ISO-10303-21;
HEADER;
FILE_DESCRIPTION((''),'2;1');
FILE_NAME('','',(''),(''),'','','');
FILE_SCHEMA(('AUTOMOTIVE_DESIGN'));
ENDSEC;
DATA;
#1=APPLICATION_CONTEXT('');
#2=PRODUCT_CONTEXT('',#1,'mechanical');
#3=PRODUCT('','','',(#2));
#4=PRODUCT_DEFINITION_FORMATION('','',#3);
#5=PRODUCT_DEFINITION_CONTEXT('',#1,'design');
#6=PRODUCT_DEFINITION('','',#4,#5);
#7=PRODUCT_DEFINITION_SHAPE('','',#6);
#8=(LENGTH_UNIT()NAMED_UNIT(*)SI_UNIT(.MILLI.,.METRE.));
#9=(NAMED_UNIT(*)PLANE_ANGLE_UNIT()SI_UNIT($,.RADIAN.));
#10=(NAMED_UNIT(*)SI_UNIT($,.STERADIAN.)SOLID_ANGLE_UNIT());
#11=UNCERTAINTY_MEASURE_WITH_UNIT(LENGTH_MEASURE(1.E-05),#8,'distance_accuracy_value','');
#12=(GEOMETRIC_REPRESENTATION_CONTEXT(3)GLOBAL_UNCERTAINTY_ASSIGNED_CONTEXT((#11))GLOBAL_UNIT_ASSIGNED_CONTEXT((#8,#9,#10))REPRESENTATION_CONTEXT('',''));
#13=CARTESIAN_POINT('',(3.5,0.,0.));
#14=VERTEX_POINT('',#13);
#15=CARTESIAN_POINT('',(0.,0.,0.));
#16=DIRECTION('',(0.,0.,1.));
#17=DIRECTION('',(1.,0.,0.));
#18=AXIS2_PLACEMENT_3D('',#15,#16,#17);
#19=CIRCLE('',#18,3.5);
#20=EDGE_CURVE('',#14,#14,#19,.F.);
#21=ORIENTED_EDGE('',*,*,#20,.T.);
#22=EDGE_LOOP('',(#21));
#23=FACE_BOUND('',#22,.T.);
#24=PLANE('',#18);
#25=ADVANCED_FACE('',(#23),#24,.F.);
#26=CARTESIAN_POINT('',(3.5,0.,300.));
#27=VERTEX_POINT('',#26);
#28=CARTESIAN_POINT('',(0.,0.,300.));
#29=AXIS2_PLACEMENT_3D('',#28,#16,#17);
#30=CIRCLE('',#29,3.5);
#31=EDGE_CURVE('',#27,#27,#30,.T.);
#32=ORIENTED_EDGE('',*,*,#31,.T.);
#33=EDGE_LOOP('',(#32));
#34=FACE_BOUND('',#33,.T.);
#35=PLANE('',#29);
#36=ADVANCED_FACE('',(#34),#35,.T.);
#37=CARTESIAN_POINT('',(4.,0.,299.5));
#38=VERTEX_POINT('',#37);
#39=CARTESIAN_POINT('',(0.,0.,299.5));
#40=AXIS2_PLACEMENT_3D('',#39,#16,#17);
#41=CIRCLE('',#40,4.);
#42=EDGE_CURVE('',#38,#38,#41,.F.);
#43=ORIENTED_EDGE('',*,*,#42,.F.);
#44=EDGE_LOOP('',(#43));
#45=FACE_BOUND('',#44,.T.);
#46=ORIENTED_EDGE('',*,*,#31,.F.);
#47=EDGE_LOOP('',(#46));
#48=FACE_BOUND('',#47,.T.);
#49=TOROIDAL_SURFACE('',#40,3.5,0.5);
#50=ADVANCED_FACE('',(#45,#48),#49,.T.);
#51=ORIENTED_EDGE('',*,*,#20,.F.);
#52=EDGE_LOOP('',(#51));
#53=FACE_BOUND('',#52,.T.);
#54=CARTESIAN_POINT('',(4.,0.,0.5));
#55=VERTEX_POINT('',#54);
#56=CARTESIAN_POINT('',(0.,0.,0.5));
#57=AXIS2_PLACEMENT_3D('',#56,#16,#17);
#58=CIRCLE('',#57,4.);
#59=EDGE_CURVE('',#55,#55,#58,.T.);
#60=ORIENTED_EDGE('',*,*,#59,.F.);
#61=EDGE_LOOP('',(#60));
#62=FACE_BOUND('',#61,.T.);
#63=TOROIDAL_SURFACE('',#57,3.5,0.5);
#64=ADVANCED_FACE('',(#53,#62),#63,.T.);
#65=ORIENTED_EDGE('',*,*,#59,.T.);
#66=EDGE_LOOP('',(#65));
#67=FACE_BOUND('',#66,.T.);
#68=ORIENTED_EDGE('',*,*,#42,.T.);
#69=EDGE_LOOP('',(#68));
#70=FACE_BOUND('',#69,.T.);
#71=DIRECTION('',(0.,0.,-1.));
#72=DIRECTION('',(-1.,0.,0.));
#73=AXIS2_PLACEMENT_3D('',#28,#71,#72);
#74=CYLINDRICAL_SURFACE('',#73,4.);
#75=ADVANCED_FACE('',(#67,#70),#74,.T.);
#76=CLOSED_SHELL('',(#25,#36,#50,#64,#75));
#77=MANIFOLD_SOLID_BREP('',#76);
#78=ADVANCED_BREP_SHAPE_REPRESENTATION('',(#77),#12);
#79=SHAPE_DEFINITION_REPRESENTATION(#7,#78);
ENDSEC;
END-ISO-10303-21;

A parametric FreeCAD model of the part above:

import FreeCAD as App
import Part
import Sketcher


def edges_at(feature, points):
    """Names of the edges that pass closest to the given points."""
    edges = feature.Shape.Edges
    near = lambda p: min(range(len(edges)), key=lambda i: edges[i].distToShape(Part.Vertex(*p))[0])
    return sorted({f"Edge{near(p) + 1}" for p in points})

doc = App.newDocument("Part")
body = doc.addObject("PartDesign::Body", "Body")

# Sketch on XY plane
sketch1 = body.newObject("Sketcher::SketchObject", "Sketch")
sketch1.AttachmentSupport = (doc.getObject("XY_Plane"), [""])
sketch1.MapMode = "FlatFace"
sketch1.addGeometry(Part.Circle(App.Vector(0, 0, 0), App.Vector(0, 0, 1), 4), False)
sketch1.addConstraint([
    Sketcher.Constraint("Coincident", 0, 3, -1, 1),
    Sketcher.Constraint("Diameter", 0, 8.0),
])
pad1 = body.newObject("PartDesign::Pad", "Pad")
pad1.Profile = sketch1
pad1.Length = 300
doc.recompute()

fillet = body.newObject("PartDesign::Fillet", "Fillet")
fillet.Base = (pad1, edges_at(pad1, [(-4, 0, 0), (-4, 0, 300)]))
fillet.Radius = 0.5

doc.recompute()
